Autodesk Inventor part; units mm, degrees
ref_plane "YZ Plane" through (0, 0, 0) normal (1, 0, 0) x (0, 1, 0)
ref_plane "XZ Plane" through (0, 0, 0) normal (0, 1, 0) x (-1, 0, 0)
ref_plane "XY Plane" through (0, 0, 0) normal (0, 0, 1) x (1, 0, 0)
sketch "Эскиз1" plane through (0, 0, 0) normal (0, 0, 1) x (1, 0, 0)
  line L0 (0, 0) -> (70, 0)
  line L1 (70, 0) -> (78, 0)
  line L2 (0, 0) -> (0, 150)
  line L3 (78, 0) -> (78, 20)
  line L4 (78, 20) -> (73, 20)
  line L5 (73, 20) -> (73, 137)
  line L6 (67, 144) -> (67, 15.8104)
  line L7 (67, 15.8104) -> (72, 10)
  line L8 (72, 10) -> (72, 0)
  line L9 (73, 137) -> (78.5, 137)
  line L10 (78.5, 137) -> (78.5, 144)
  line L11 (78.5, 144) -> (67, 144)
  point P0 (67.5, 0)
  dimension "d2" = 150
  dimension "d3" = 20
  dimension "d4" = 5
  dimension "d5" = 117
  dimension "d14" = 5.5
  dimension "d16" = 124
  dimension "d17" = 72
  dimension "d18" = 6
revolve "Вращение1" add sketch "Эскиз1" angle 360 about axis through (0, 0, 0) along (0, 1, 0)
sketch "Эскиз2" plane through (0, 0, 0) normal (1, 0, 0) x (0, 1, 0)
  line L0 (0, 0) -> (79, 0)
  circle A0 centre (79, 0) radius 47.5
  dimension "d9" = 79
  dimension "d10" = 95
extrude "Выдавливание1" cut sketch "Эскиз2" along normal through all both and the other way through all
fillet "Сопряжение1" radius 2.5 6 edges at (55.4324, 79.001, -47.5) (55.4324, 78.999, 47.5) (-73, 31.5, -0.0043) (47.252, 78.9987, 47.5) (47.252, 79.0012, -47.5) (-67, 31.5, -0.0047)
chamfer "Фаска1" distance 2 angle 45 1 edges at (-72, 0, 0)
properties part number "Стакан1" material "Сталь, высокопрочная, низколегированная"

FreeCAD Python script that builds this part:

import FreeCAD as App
import Part
import Sketcher
from FreeCAD import Vector


def edges_at(feature, points):
    """Names of the edges that pass closest to the given points."""
    edges = feature.Shape.Edges
    near = lambda p: min(range(len(edges)), key=lambda i: edges[i].distToShape(Part.Vertex(*p))[0])
    return sorted({f"Edge{near(p) + 1}" for p in points})

doc = App.newDocument("Part")
body = doc.addObject("PartDesign::Body", "Body")

# Sketch on XY plane
sketch1 = doc.addObject("Sketcher::SketchObject", "Sketch")
body.addObject(sketch1)
sketch1.AttachmentSupport = (doc.XY_Plane, [""])
sketch1.MapMode = "FlatFace"
sketch1.addGeometry([
    Part.LineSegment(Vector(72, 10, 0), Vector(72, 0, 0)),  # 0
    Part.LineSegment(Vector(72, 0, 0), Vector(78, 0, 0)),  # 1
    Part.LineSegment(Vector(78, 0, 0), Vector(78, 20, 0)),  # 2
    Part.LineSegment(Vector(78, 20, 0), Vector(73, 20, 0)),  # 3
    Part.LineSegment(Vector(73, 20, 0), Vector(73, 137, 0)),  # 4
    Part.LineSegment(Vector(73, 137, 0), Vector(78, 137, 0)),  # 5
    Part.LineSegment(Vector(78, 137, 0), Vector(78, 144, 0)),  # 6
    Part.LineSegment(Vector(78, 144, 0), Vector(67, 144, 0)),  # 7
    Part.LineSegment(Vector(67, 144, 0), Vector(67, 16, 0)),  # 8
    Part.LineSegment(Vector(67, 16, 0), Vector(72, 10, 0)),  # 9
], False)
sketch1.addConstraint([
    Sketcher.Constraint("Coincident", 0, 2, 1, 1),
    Sketcher.Constraint("Coincident", 1, 2, 2, 1),
    Sketcher.Constraint("Coincident", 2, 2, 3, 1),
    Sketcher.Constraint("Coincident", 3, 2, 4, 1),
    Sketcher.Constraint("Coincident", 4, 2, 5, 1),
    Sketcher.Constraint("Coincident", 5, 2, 6, 1),
    Sketcher.Constraint("Coincident", 6, 2, 7, 1),
    Sketcher.Constraint("Coincident", 7, 2, 8, 1),
    Sketcher.Constraint("Coincident", 8, 2, 9, 1),
    Sketcher.Constraint("Coincident", 9, 2, 0, 1),
    Sketcher.Constraint("Vertical", 0),
    Sketcher.Constraint("Horizontal", 1),
    Sketcher.Constraint("Vertical", 2),
    Sketcher.Constraint("Horizontal", 3),
    Sketcher.Constraint("Vertical", 4),
    Sketcher.Constraint("Horizontal", 5),
    Sketcher.Constraint("Vertical", 6),
    Sketcher.Constraint("Horizontal", 7),
    Sketcher.Constraint("Vertical", 8),
    Sketcher.Constraint("PointOnObject", 0, 2, -1),
    Sketcher.Constraint("DistanceX", 1, 1, 1, 2, 6.0),
    Sketcher.Constraint("DistanceX", 3, 2, 3, 1, 5.0),
    Sketcher.Constraint("DistanceY", 2, 1, 2, 2, 20.0),
    Sketcher.Constraint("DistanceY", 4, 1, 4, 2, 117.0),
    Sketcher.Constraint("DistanceX", 5, 1, 5, 2, 5.5),
    Sketcher.Constraint("DistanceX", -1, 1, 0, 2, 72.0),
    Sketcher.Constraint("DistanceY", 2, 2, 6, 2, 124.0),
    Sketcher.Constraint("DistanceX", 7, 2, 4, 2, 6.0),
    Sketcher.Constraint("DistanceY", 0, 2, 0, 1, 10.0),
    Sketcher.Constraint("DistanceY", 8, 2, 8, 1, 128.1896),
])
revolution = doc.addObject("PartDesign::Revolution", "Revolution")
body.addObject(revolution)
revolution.Profile = sketch1
revolution.ReferenceAxis = (sketch1, ["V_Axis"])
revolution.Angle = 360

# Sketch on YZ plane
sketch2 = doc.addObject("Sketcher::SketchObject", "Sketch001")
body.addObject(sketch2)
sketch2.AttachmentSupport = (doc.YZ_Plane, [""])
sketch2.MapMode = "FlatFace"
sketch2.addGeometry(Part.Circle(Vector(79, 0, 0), Vector(0, 0, 1), 48), False)
sketch2.addConstraint([
    Sketcher.Constraint("PointOnObject", 0, 3, -1),
    Sketcher.Constraint("Diameter", 0, 95.0),
    Sketcher.Constraint("DistanceX", -1, 1, 0, 3, 79.0),
])
pocket1 = doc.addObject("PartDesign::Pocket", "Pocket")
body.addObject(pocket1)
pocket1.Profile = sketch2
pocket1.Type = "ThroughAll"
pocket1.Midplane = True
doc.recompute()

fillet = doc.addObject("PartDesign::Fillet", "Fillet")
body.addObject(fillet)
fillet.Base = (pocket1, edges_at(pocket1, [
    (55.432, 79.001, -47.5),
    (55.432, 78.999, 47.5),
    (-73, 31.5, -0.004),
    (47.252, 78.999, 47.5),
    (47.252, 79.001, -47.5),
    (-67, 31.5, -0.005),
]))
fillet.Radius = 2.5
doc.recompute()

chamfer = doc.addObject("PartDesign::Chamfer", "Chamfer")
body.addObject(chamfer)
chamfer.Base = (fillet, edges_at(fillet, [(-72, 0, 0)]))
chamfer.Size = 2

doc.recompute()
